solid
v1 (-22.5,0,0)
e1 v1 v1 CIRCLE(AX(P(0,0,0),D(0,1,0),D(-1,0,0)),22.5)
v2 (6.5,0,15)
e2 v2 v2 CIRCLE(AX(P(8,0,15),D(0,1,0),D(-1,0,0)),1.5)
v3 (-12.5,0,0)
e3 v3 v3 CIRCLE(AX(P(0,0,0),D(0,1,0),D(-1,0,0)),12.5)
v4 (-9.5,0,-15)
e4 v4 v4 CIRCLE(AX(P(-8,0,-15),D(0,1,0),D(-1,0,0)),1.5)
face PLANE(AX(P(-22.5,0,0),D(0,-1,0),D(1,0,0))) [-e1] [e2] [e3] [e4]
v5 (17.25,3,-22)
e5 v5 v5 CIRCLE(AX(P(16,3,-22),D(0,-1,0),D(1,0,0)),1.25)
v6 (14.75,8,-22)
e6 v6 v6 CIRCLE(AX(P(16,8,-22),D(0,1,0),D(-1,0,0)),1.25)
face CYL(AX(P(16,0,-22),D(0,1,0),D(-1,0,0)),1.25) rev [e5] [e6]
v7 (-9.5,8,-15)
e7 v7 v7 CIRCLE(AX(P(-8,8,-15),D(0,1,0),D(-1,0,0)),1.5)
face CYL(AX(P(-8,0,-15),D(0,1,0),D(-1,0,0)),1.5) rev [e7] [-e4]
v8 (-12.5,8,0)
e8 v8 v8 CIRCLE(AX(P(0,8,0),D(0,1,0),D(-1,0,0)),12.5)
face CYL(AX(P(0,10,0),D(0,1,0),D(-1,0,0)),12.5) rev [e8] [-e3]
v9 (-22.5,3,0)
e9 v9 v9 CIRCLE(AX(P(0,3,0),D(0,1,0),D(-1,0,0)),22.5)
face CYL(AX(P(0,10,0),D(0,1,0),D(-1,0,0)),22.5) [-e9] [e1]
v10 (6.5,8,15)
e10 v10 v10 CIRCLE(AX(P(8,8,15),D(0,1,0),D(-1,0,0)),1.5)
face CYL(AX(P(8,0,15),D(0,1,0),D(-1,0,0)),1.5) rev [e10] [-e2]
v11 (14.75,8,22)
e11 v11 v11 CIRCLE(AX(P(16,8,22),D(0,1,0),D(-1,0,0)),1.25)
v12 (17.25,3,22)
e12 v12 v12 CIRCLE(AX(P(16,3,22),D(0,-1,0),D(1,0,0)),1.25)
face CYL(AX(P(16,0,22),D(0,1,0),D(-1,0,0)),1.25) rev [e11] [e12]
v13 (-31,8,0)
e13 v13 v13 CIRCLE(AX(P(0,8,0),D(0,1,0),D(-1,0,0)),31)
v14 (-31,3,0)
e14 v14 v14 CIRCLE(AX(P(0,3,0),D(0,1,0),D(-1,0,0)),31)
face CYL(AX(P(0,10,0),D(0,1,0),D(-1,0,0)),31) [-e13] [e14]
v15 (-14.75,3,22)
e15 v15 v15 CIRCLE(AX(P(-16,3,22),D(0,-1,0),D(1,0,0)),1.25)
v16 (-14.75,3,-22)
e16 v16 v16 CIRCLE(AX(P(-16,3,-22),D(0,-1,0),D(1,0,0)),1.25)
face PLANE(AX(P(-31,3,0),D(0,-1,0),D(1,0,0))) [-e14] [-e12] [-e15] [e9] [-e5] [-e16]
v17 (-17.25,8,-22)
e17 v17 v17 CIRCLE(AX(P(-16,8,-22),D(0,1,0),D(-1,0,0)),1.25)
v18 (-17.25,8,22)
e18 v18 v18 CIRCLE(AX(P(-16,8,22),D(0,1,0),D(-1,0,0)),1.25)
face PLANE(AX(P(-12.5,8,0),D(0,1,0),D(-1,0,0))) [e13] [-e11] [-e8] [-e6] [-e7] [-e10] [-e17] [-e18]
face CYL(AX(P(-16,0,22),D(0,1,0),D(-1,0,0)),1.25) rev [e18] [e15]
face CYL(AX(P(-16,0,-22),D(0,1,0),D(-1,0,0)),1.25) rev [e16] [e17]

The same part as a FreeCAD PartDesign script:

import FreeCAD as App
import Part
import Sketcher
from FreeCAD import Vector


def add_polygon(sketch, points):
    """Adds a closed chain of lines whose ends are joined by coincident constraints."""
    first, n = sketch.GeometryCount, len(points)
    for a, b in zip(points, points[1:] + points[:1]):
        sketch.addGeometry(Part.LineSegment(App.Vector(*a, 0), App.Vector(*b, 0)), False)
    for i in range(n):
        sketch.addConstraint(Sketcher.Constraint("Coincident", first + i, 2, first + (i + 1) % n, 1))

doc = App.newDocument("Part")
body = doc.addObject("PartDesign::Body", "Body")

# Sketch on XY plane
sketch1 = doc.addObject("Sketcher::SketchObject", "Sketch")
body.addObject(sketch1)
sketch1.AttachmentSupport = (doc.XY_Plane, [""])
sketch1.MapMode = "FlatFace"
add_polygon(sketch1, [(-12.5, 8), (-31, 8), (-31, 3), (-22.5, 3), (-22.5, 0), (-12.5, 0)])  # lines 0-5
sketch1.addConstraint([
    Sketcher.Constraint("Horizontal", 0),
    Sketcher.Constraint("Vertical", 1),
    Sketcher.Constraint("Horizontal", 2),
    Sketcher.Constraint("Vertical", 3),
    Sketcher.Constraint("Horizontal", 4),
    Sketcher.Constraint("Vertical", 5),
    Sketcher.Constraint("PointOnObject", 3, 2, -1),
    Sketcher.Constraint("DistanceX", 4, 1, 4, 2, 10.0),
    Sketcher.Constraint("DistanceY", 1, 2, 1, 1, 5.0),
    Sketcher.Constraint("DistanceY", 3, 2, 3, 1, 3.0),
    Sketcher.Constraint("DistanceX", 0, 2, 0, 1, 18.5),
    Sketcher.Constraint("DistanceX", 0, 2, -1, 1, 31.0),
])
revolution = doc.addObject("PartDesign::Revolution", "Revolution")
body.addObject(revolution)
revolution.Profile = sketch1
revolution.ReferenceAxis = (sketch1, ["V_Axis"])
revolution.Angle = 360

# Sketch on XZ plane
sketch2 = doc.addObject("Sketcher::SketchObject", "Sketch001")
body.addObject(sketch2)
sketch2.AttachmentSupport = (doc.XZ_Plane, [""])
sketch2.MapMode = "FlatFace"
sketch2.AttachmentOffset = App.Placement(Vector(0, 0, -8), App.Rotation())
sketch2.addGeometry([
    Part.Circle(Vector(-16, -22, 0), Vector(0, 0, 1), 1.25),  # 0
    Part.Circle(Vector(16, -22, 0), Vector(0, 0, 1), 1.25),  # 1
    Part.Circle(Vector(16, 22, 0), Vector(0, 0, 1), 1.25),  # 2
    Part.Circle(Vector(-16, 22, 0), Vector(0, 0, 1), 1.25),  # 3
    Part.Circle(Vector(-8, -15, 0), Vector(0, 0, 1), 1.5),  # 4
    Part.Circle(Vector(8, 15, 0), Vector(0, 0, 1), 1.5),  # 5
], False)
sketch2.addConstraint([
    Sketcher.Constraint("Equal", 0, 1),
    Sketcher.Constraint("Equal", 1, 2),
    Sketcher.Constraint("Equal", 2, 3),
    Sketcher.Constraint("Equal", 4, 5),
    Sketcher.Constraint("Symmetric", 0, 3, 2, 3, -1, 1),
    Sketcher.Constraint("Symmetric", 1, 3, 3, 3, -1, 1),
    Sketcher.Constraint("Symmetric", 4, 3, 5, 3, -1, 1),
    Sketcher.Constraint("Symmetric", 0, 3, 1, 3, -2),
    Sketcher.Constraint("Diameter", 4, 3.0),
    Sketcher.Constraint("Diameter", 0, 2.5),
    Sketcher.Constraint("DistanceX", 0, 3, -1, 1, 16.0),
    Sketcher.Constraint("DistanceY", 0, 3, -1, 1, 22.0),
    Sketcher.Constraint("DistanceX", 4, 3, -1, 1, 8.0),
    Sketcher.Constraint("DistanceY", 4, 3, -1, 1, 15.0),
])
pocket1 = doc.addObject("PartDesign::Pocket", "Pocket")
body.addObject(pocket1)
pocket1.Profile = sketch2
pocket1.Length = 8
pocket1.Reversed = True

doc.recompute()
